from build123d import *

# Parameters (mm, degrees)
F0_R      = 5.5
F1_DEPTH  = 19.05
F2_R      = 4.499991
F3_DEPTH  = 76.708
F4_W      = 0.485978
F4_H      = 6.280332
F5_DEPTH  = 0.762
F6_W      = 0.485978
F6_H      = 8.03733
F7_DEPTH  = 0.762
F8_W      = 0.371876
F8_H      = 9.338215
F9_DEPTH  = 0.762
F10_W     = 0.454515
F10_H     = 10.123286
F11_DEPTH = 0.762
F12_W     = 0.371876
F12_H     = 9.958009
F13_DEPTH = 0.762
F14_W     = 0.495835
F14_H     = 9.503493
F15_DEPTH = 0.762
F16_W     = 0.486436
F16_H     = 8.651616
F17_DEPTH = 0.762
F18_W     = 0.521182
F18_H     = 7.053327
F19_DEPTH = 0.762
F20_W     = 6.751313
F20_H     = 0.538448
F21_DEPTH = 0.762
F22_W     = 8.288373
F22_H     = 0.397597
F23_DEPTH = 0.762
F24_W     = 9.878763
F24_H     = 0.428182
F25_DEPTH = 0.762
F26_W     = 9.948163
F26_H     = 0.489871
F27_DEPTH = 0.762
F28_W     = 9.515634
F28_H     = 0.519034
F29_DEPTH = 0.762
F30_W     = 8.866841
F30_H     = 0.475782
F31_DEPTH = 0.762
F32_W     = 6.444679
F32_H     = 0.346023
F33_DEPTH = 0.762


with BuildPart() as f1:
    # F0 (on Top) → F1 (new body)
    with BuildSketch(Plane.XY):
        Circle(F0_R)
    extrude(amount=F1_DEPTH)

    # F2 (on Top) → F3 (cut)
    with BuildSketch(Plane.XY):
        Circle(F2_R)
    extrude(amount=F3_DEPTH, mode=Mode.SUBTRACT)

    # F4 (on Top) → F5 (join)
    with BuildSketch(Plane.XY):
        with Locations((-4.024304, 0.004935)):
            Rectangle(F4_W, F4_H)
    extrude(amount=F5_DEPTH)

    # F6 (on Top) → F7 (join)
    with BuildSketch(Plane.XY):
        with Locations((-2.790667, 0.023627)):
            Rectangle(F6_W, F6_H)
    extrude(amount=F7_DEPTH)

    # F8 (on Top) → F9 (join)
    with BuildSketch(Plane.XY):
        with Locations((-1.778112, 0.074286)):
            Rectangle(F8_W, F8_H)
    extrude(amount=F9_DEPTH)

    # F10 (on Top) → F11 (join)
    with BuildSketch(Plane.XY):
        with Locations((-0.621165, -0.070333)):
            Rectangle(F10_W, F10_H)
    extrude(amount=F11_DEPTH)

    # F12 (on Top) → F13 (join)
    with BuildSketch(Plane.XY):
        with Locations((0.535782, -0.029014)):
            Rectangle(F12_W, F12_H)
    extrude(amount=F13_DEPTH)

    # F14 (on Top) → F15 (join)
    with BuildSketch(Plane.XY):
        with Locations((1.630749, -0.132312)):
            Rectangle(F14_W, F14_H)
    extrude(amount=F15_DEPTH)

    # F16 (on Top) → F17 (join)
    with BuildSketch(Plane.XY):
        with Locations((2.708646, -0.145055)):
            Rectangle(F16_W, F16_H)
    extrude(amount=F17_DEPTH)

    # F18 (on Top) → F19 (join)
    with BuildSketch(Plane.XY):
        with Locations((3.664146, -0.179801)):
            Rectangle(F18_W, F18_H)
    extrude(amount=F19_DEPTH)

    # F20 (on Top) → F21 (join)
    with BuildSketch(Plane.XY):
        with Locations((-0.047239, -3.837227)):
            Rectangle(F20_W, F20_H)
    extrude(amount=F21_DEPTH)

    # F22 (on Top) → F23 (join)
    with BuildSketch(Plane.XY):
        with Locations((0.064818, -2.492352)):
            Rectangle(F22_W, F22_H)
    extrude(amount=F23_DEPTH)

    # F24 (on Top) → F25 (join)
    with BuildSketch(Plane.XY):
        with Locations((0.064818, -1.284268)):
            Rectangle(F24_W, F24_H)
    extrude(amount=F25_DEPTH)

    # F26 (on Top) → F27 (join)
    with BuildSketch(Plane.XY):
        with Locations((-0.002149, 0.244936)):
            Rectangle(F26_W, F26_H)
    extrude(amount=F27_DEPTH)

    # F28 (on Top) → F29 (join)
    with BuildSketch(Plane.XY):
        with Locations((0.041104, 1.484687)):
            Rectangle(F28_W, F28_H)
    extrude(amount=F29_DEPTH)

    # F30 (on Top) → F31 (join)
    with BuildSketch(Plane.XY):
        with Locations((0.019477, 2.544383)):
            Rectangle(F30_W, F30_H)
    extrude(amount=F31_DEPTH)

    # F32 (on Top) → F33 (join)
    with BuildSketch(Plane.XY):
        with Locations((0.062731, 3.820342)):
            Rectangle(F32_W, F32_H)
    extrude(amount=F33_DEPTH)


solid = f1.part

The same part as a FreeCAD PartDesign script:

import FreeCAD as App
import Part
import Sketcher
from FreeCAD import Vector
Q = App.Units.Quantity


def add_polygon(sketch, points):
    """Adds a closed chain of lines whose ends are joined by coincident constraints."""
    first, n = sketch.GeometryCount, len(points)
    for a, b in zip(points, points[1:] + points[:1]):
        sketch.addGeometry(Part.LineSegment(App.Vector(*a, 0), App.Vector(*b, 0)), False)
    for i in range(n):
        sketch.addConstraint(Sketcher.Constraint("Coincident", first + i, 2, first + (i + 1) % n, 1))

doc = App.newDocument("Part")
body = doc.addObject("PartDesign::Body", "Body")

# Sketch on XY plane
sketch1 = doc.addObject("Sketcher::SketchObject", "Sketch")
body.addObject(sketch1)
sketch1.AttachmentSupport = (doc.XY_Plane, [""])
sketch1.MapMode = "FlatFace"
sketch1.addGeometry(Part.Circle(Vector(0, 0, 0), Vector(0, 0, 1), 5.5), False)
sketch1.addConstraint([
    Sketcher.Constraint("Coincident", 0, 3, -1, 1),
    Sketcher.Constraint("Diameter", 0, 11.0),
])
pad1 = doc.addObject("PartDesign::Pad", "Pad")
body.addObject(pad1)
pad1.Profile = sketch1
pad1.Length = Q("0.75 in")

# Sketch on XY plane
sketch2 = doc.addObject("Sketcher::SketchObject", "Sketch001")
body.addObject(sketch2)
sketch2.AttachmentSupport = (doc.XY_Plane, [""])
sketch2.MapMode = "FlatFace"
sketch2.addGeometry(Part.Circle(Vector(0, 0, 0), Vector(0, 0, 1), 4.499991), False)
sketch2.addConstraint([
    Sketcher.Constraint("Coincident", 0, 3, -1, 1),
    Sketcher.Constraint("Diameter", 0, 8.999982),
])
pocket1 = doc.addObject("PartDesign::Pocket", "Pocket")
body.addObject(pocket1)
pocket1.Profile = sketch2
pocket1.Length = Q("3.02 in")
pocket1.Reversed = True

# Sketch on XY plane
sketch3 = doc.addObject("Sketcher::SketchObject", "Sketch002")
body.addObject(sketch3)
sketch3.AttachmentSupport = (doc.XY_Plane, [""])
sketch3.MapMode = "FlatFace"
add_polygon(sketch3, [(-4.267293, 3.145101), (-4.267293, -3.135231), (-3.781315, -3.135231), (-3.781315, 3.145101)])  # lines 0-3
sketch3.addConstraint([
    Sketcher.Constraint("Vertical", 0),
    Sketcher.Constraint("Horizontal", 1),
    Sketcher.Constraint("Vertical", 2),
    Sketcher.Constraint("Horizontal", 3),
    Sketcher.Constraint("DistanceY", 0, 2, 0, 1, 6.280332),
    Sketcher.Constraint("DistanceY", -1, 1, 2, 2, 3.145101),
    Sketcher.Constraint("DistanceX", 1, 1, 1, 2, 0.485978),
    Sketcher.Constraint("DistanceX", 0, 2, -1, 1, 4.267293),
])
pad2 = doc.addObject("PartDesign::Pad", "Pad001")
body.addObject(pad2)
pad2.Profile = sketch3
pad2.Length = Q("0.03 in")

# Sketch on XY plane
sketch4 = doc.addObject("Sketcher::SketchObject", "Sketch003")
body.addObject(sketch4)
sketch4.AttachmentSupport = (doc.XY_Plane, [""])
sketch4.MapMode = "FlatFace"
add_polygon(sketch4, [(-3.033656, 4.042292), (-3.033656, -3.995038), (-2.547678, -3.995038), (-2.547678, 4.042292)])  # lines 0-3
sketch4.addConstraint([
    Sketcher.Constraint("Vertical", 0),
    Sketcher.Constraint("Horizontal", 1),
    Sketcher.Constraint("Vertical", 2),
    Sketcher.Constraint("Horizontal", 3),
    Sketcher.Constraint("DistanceX", 1, 1, 1, 2, 0.485978),
    Sketcher.Constraint("DistanceY", 0, 2, 0, 1, 8.03733),
    Sketcher.Constraint("DistanceY", 0, 2, -1, 1, 3.995038),
    Sketcher.Constraint("DistanceX", 0, 2, -1, 1, 3.033656),
])
pad3 = doc.addObject("PartDesign::Pad", "Pad002")
body.addObject(pad3)
pad3.Profile = sketch4
pad3.Length = Q("0.03 in")

# Sketch on XY plane
sketch5 = doc.addObject("Sketcher::SketchObject", "Sketch004")
body.addObject(sketch5)
sketch5.AttachmentSupport = (doc.XY_Plane, [""])
sketch5.MapMode = "FlatFace"
add_polygon(sketch5, [(-1.96405, 4.743393), (-1.96405, -4.594822), (-1.592174, -4.594822), (-1.592174, 4.743393)])  # lines 0-3
sketch5.addConstraint([
    Sketcher.Constraint("Vertical", 0),
    Sketcher.Constraint("Horizontal", 1),
    Sketcher.Constraint("Vertical", 2),
    Sketcher.Constraint("Horizontal", 3),
    Sketcher.Constraint("DistanceX", 1, 1, 1, 2, 0.371876),
    Sketcher.Constraint("DistanceY", 0, 2, 0, 1, 9.338215),
    Sketcher.Constraint("DistanceX", 0, 2, -1, 1, 1.96405),
    Sketcher.Constraint("DistanceY", 0, 2, -1, 1, 4.594822),
])
pad4 = doc.addObject("PartDesign::Pad", "Pad003")
body.addObject(pad4)
pad4.Profile = sketch5
pad4.Length = Q("0.03 in")

# Sketch on XY plane
sketch6 = doc.addObject("Sketcher::SketchObject", "Sketch005")
body.addObject(sketch6)
sketch6.AttachmentSupport = (doc.XY_Plane, [""])
sketch6.MapMode = "FlatFace"
add_polygon(sketch6, [(-0.848422, 4.99131), (-0.848422, -5.131976), (-0.393908, -5.131976), (-0.393908, 4.99131)])  # lines 0-3
sketch6.addConstraint([
    Sketcher.Constraint("Vertical", 0),
    Sketcher.Constraint("Horizontal", 1),
    Sketcher.Constraint("Vertical", 2),
    Sketcher.Constraint("Horizontal", 3),
    Sketcher.Constraint("DistanceX", 1, 1, 1, 2, 0.454515),
    Sketcher.Constraint("DistanceY", 0, 2, 0, 1, 10.123286),
    Sketcher.Constraint("DistanceY", -1, 1, 2, 2, 4.99131),
    Sketcher.Constraint("DistanceX", 0, 2, -1, 1, 0.848422),
])
pad5 = doc.addObject("PartDesign::Pad", "Pad004")
body.addObject(pad5)
pad5.Profile = sketch6
pad5.Length = Q("0.03 in")

# Sketch on XY plane
sketch7 = doc.addObject("Sketcher::SketchObject", "Sketch006")
body.addObject(sketch7)
sketch7.AttachmentSupport = (doc.XY_Plane, [""])
sketch7.MapMode = "FlatFace"
add_polygon(sketch7, [(0.349844, 4.949991), (0.349844, -5.008019), (0.72172, -5.008019), (0.72172, 4.949991)])  # lines 0-3
sketch7.addConstraint([
    Sketcher.Constraint("Vertical", 0),
    Sketcher.Constraint("Horizontal", 1),
    Sketcher.Constraint("Vertical", 2),
    Sketcher.Constraint("Horizontal", 3),
    Sketcher.Constraint("DistanceY", 0, 2, 0, 1, 9.958009),
    Sketcher.Constraint("DistanceX", 1, 1, 1, 2, 0.371876),
    Sketcher.Constraint("DistanceY", 0, 2, -1, 1, 5.008019),
    Sketcher.Constraint("DistanceX", -1, 1, 1, 2, 0.72172),
])
pad6 = doc.addObject("PartDesign::Pad", "Pad005")
body.addObject(pad6)
pad6.Profile = sketch7
pad6.Length = Q("0.03 in")

# Sketch on XY plane
sketch8 = doc.addObject("Sketcher::SketchObject", "Sketch007")
body.addObject(sketch8)
sketch8.AttachmentSupport = (doc.XY_Plane, [""])
sketch8.MapMode = "FlatFace"
add_polygon(sketch8, [(1.382831, 4.619434), (1.382831, -4.884059), (1.878667, -4.884059), (1.878667, 4.619434)])  # lines 0-3
sketch8.addConstraint([
    Sketcher.Constraint("Vertical", 0),
    Sketcher.Constraint("Horizontal", 1),
    Sketcher.Constraint("Vertical", 2),
    Sketcher.Constraint("Horizontal", 3),
    Sketcher.Constraint("DistanceX", 1, 1, 1, 2, 0.495835),
    Sketcher.Constraint("DistanceY", 0, 2, 0, 1, 9.503493),
    Sketcher.Constraint("DistanceX", -1, 1, 0, 2, 1.382831),
    Sketcher.Constraint("DistanceY", 0, 2, -1, 1, 4.884059),
])
pad7 = doc.addObject("PartDesign::Pad", "Pad006")
body.addObject(pad7)
pad7.Profile = sketch8
pad7.Length = Q("0.03 in")

# Sketch on XY plane
sketch9 = doc.addObject("Sketcher::SketchObject", "Sketch008")
body.addObject(sketch9)
sketch9.AttachmentSupport = (doc.XY_Plane, [""])
sketch9.MapMode = "FlatFace"
add_polygon(sketch9, [(2.465428, 4.180753), (2.465428, -4.470863), (2.951864, -4.470863), (2.951864, 4.180753)])  # lines 0-3
sketch9.addConstraint([
    Sketcher.Constraint("Vertical", 0),
    Sketcher.Constraint("Horizontal", 1),
    Sketcher.Constraint("Vertical", 2),
    Sketcher.Constraint("Horizontal", 3),
    Sketcher.Constraint("DistanceX", 1, 1, 1, 2, 0.486436),
    Sketcher.Constraint("DistanceY", 0, 2, 0, 1, 8.651616),
    Sketcher.Constraint("DistanceX", -1, 1, 0, 2, 2.465428),
    Sketcher.Constraint("DistanceY", 0, 2, -1, 1, 4.470863),
])
pad8 = doc.addObject("PartDesign::Pad", "Pad007")
body.addObject(pad8)
pad8.Profile = sketch9
pad8.Length = Q("0.03 in")

# Sketch on XY plane
sketch10 = doc.addObject("Sketcher::SketchObject", "Sketch009")
body.addObject(sketch10)
sketch10.AttachmentSupport = (doc.XY_Plane, [""])
sketch10.MapMode = "FlatFace"
add_polygon(sketch10, [(3.403555, 3.346862), (3.403555, -3.706465), (3.924737, -3.706465), (3.924737, 3.346862)])  # lines 0-3
sketch10.addConstraint([
    Sketcher.Constraint("Vertical", 0),
    Sketcher.Constraint("Horizontal", 1),
    Sketcher.Constraint("Vertical", 2),
    Sketcher.Constraint("Horizontal", 3),
    Sketcher.Constraint("DistanceX", 1, 1, 1, 2, 0.521182),
    Sketcher.Constraint("DistanceY", 0, 2, 0, 1, 7.053327),
    Sketcher.Constraint("DistanceX", -1, 1, 0, 2, 3.403555),
    Sketcher.Constraint("DistanceY", 0, 2, -1, 1, 3.706465),
])
pad9 = doc.addObject("PartDesign::Pad", "Pad008")
body.addObject(pad9)
pad9.Profile = sketch10
pad9.Length = Q("0.03 in")

# Sketch on XY plane
sketch11 = doc.addObject("Sketcher::SketchObject", "Sketch010")
body.addObject(sketch11)
sketch11.AttachmentSupport = (doc.XY_Plane, [""])
sketch11.MapMode = "FlatFace"
add_polygon(sketch11, [(-3.422896, -3.568003), (-3.422896, -4.106451), (3.328418, -4.106451), (3.328418, -3.568003)])  # lines 0-3
sketch11.addConstraint([
    Sketcher.Constraint("Vertical", 0),
    Sketcher.Constraint("Horizontal", 1),
    Sketcher.Constraint("Vertical", 2),
    Sketcher.Constraint("Horizontal", 3),
    Sketcher.Constraint("DistanceX", 1, 1, 1, 2, 6.751313),
    Sketcher.Constraint("DistanceY", 0, 2, 0, 1, 0.538448),
    Sketcher.Constraint("DistanceY", 0, 2, -1, 1, 4.106451),
    Sketcher.Constraint("DistanceX", 0, 2, -1, 1, 3.422896),
])
pad10 = doc.addObject("PartDesign::Pad", "Pad009")
body.addObject(pad10)
pad10.Profile = sketch11
pad10.Length = Q("0.03 in")

# Sketch on XY plane
sketch12 = doc.addObject("Sketcher::SketchObject", "Sketch011")
body.addObject(sketch12)
sketch12.AttachmentSupport = (doc.XY_Plane, [""])
sketch12.MapMode = "FlatFace"
add_polygon(sketch12, [(-4.079369, -2.293553), (-4.079369, -2.691151), (4.209004, -2.691151), (4.209004, -2.293553)])  # lines 0-3
sketch12.addConstraint([
    Sketcher.Constraint("Vertical", 0),
    Sketcher.Constraint("Horizontal", 1),
    Sketcher.Constraint("Vertical", 2),
    Sketcher.Constraint("Horizontal", 3),
    Sketcher.Constraint("DistanceX", 1, 1, 1, 2, 8.288373),
    Sketcher.Constraint("DistanceY", 0, 2, 0, 1, 0.397597),
    Sketcher.Constraint("DistanceX", 0, 2, -1, 1, 4.079369),
    Sketcher.Constraint("DistanceY", 0, 2, -1, 1, 2.691151),
])
pad11 = doc.addObject("PartDesign::Pad", "Pad010")
body.addObject(pad11)
pad11.Profile = sketch12
pad11.Length = Q("0.03 in")

# Sketch on XY plane
sketch13 = doc.addObject("Sketcher::SketchObject", "Sketch012")
body.addObject(sketch13)
sketch13.AttachmentSupport = (doc.XY_Plane, [""])
sketch13.MapMode = "FlatFace"
add_polygon(sketch13, [(-4.874563, -1.070177), (-4.874563, -1.498359), (5.0042, -1.498359), (5.0042, -1.070177)])  # lines 0-3
sketch13.addConstraint([
    Sketcher.Constraint("Vertical", 0),
    Sketcher.Constraint("Horizontal", 1),
    Sketcher.Constraint("Vertical", 2),
    Sketcher.Constraint("Horizontal", 3),
    Sketcher.Constraint("DistanceX", -1, 1, 1, 2, 5.0042),
    Sketcher.Constraint("DistanceX", 1, 1, 1, 2, 9.878763),
    Sketcher.Constraint("DistanceY", 0, 2, 0, 1, 0.428182),
    Sketcher.Constraint("DistanceY", 0, 2, -1, 1, 1.498359),
])
pad12 = doc.addObject("PartDesign::Pad", "Pad011")
body.addObject(pad12)
pad12.Profile = sketch13
pad12.Length = Q("0.03 in")

# Sketch on XY plane
sketch14 = doc.addObject("Sketcher::SketchObject", "Sketch013")
body.addObject(sketch14)
sketch14.AttachmentSupport = (doc.XY_Plane, [""])
sketch14.MapMode = "FlatFace"
add_polygon(sketch14, [(-4.97623, 0.489872), (-4.97623, 0), (4.971933, 0), (4.971933, 0.489872)])  # lines 0-3
sketch14.addConstraint([
    Sketcher.Constraint("Vertical", 0),
    Sketcher.Constraint("Horizontal", 1),
    Sketcher.Constraint("Vertical", 2),
    Sketcher.Constraint("Horizontal", 3),
    Sketcher.Constraint("PointOnObject", 0, 2, -1),
    Sketcher.Constraint("DistanceY", 0, 2, 0, 1, 0.489871),
    Sketcher.Constraint("DistanceX", 1, 1, 1, 2, 9.948163),
    Sketcher.Constraint("DistanceX", 0, 2, -1, 1, 4.97623),
])
pad13 = doc.addObject("PartDesign::Pad", "Pad012")
body.addObject(pad13)
pad13.Profile = sketch14
pad13.Length = Q("0.03 in")

# Sketch on XY plane
sketch15 = doc.addObject("Sketcher::SketchObject", "Sketch014")
body.addObject(sketch15)
sketch15.AttachmentSupport = (doc.XY_Plane, [""])
sketch15.MapMode = "FlatFace"
add_polygon(sketch15, [(-4.716713, 1.744204), (-4.716713, 1.22517), (4.798921, 1.22517), (4.798921, 1.744204)])  # lines 0-3
sketch15.addConstraint([
    Sketcher.Constraint("Vertical", 0),
    Sketcher.Constraint("Horizontal", 1),
    Sketcher.Constraint("Vertical", 2),
    Sketcher.Constraint("Horizontal", 3),
    Sketcher.Constraint("DistanceX", 1, 1, 1, 2, 9.515634),
    Sketcher.Constraint("DistanceY", 0, 2, 0, 1, 0.519034),
    Sketcher.Constraint("DistanceY", -1, 1, 0, 2, 1.22517),
    Sketcher.Constraint("DistanceX", -1, 1, 1, 2, 4.798921),
])
pad14 = doc.addObject("PartDesign::Pad", "Pad013")
body.addObject(pad14)
pad14.Profile = sketch15
pad14.Length = Q("0.03 in")

# Sketch on XY plane
sketch16 = doc.addObject("Sketcher::SketchObject", "Sketch015")
body.addObject(sketch16)
sketch16.AttachmentSupport = (doc.XY_Plane, [""])
sketch16.MapMode = "FlatFace"
add_polygon(sketch16, [(-4.413944, 2.782274), (-4.413944, 2.306492), (4.452897, 2.306492), (4.452897, 2.782274)])  # lines 0-3
sketch16.addConstraint([
    Sketcher.Constraint("Vertical", 0),
    Sketcher.Constraint("Horizontal", 1),
    Sketcher.Constraint("Vertical", 2),
    Sketcher.Constraint("Horizontal", 3),
    Sketcher.Constraint("DistanceX", 1, 1, 1, 2, 8.866841),
    Sketcher.Constraint("DistanceY", 0, 2, 0, 1, 0.475782),
    Sketcher.Constraint("DistanceY", -1, 1, 0, 2, 2.306492),
    Sketcher.Constraint("DistanceX", 0, 2, -1, 1, 4.413944),
])
pad15 = doc.addObject("PartDesign::Pad", "Pad014")
body.addObject(pad15)
pad15.Profile = sketch16
pad15.Length = Q("0.03 in")

# Sketch on XY plane
sketch17 = doc.addObject("Sketcher::SketchObject", "Sketch016")
body.addObject(sketch17)
sketch17.AttachmentSupport = (doc.XY_Plane, [""])
sketch17.MapMode = "FlatFace"
add_polygon(sketch17, [(-3.159609, 3.993354), (-3.159609, 3.64733), (3.28507, 3.64733), (3.28507, 3.993354)])  # lines 0-3
sketch17.addConstraint([
    Sketcher.Constraint("Vertical", 0),
    Sketcher.Constraint("Horizontal", 1),
    Sketcher.Constraint("Vertical", 2),
    Sketcher.Constraint("Horizontal", 3),
    Sketcher.Constraint("DistanceX", 1, 1, 1, 2, 6.444679),
    Sketcher.Constraint("DistanceY", 0, 2, 0, 1, 0.346023),
    Sketcher.Constraint("DistanceX", 0, 2, -1, 1, 3.159609),
    Sketcher.Constraint("DistanceY", -1, 1, 0, 2, 3.64733),
])
pad16 = doc.addObject("PartDesign::Pad", "Pad015")
body.addObject(pad16)
pad16.Profile = sketch17
pad16.Length = Q("0.03 in")

doc.recompute()
